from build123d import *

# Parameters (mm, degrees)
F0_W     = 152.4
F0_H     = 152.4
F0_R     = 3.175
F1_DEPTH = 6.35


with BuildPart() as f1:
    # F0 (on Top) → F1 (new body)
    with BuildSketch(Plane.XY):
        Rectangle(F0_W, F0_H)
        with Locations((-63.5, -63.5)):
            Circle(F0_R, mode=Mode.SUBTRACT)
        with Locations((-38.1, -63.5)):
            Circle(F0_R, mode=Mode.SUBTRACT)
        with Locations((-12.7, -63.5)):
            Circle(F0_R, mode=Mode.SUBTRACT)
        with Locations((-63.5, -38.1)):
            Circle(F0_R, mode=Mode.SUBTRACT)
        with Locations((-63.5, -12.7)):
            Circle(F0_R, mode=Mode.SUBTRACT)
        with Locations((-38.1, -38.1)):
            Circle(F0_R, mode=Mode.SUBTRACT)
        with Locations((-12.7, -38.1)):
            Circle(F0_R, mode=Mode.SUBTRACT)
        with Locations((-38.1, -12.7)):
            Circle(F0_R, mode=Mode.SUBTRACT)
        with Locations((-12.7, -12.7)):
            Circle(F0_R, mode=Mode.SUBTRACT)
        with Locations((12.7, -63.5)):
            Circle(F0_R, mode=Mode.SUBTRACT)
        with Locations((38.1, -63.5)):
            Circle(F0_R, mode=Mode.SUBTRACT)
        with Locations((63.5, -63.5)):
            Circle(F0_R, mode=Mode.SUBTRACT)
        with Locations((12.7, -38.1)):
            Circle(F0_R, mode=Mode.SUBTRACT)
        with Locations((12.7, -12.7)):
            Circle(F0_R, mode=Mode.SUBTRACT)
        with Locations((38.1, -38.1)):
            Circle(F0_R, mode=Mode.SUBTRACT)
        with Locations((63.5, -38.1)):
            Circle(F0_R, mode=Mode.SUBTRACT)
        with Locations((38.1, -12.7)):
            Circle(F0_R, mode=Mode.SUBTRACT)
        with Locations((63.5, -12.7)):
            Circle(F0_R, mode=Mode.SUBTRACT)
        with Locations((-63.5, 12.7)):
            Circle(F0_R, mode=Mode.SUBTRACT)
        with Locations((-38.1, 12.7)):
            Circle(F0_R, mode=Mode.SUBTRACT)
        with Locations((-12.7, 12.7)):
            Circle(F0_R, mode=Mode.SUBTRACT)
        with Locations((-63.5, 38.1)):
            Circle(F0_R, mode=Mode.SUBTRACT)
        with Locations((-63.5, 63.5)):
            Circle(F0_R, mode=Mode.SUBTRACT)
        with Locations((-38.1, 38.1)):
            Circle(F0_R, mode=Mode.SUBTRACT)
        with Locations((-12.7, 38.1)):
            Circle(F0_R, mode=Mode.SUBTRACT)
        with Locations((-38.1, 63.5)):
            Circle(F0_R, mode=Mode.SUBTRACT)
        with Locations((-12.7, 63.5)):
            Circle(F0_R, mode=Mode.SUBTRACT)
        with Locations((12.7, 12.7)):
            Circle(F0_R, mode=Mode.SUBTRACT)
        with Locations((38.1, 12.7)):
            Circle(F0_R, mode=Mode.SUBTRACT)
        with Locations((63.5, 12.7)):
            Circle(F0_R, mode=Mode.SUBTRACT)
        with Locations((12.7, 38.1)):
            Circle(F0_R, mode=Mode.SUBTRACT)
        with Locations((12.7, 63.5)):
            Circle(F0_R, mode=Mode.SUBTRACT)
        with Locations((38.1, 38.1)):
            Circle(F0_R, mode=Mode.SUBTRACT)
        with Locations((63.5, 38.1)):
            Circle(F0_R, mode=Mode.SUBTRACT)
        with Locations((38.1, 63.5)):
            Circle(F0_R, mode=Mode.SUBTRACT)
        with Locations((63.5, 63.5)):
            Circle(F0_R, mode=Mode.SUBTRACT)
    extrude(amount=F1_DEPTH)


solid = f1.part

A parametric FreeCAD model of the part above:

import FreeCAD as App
import Part
import Sketcher

V = App.Vector
Q = App.Units.Quantity

doc = App.newDocument("Part")
params = doc.addObject("Spreadsheet::Sheet", "Params")
for row, (alias, value) in enumerate([
    ("sketch1_diameter", "0.25 in"),
    ("sketch1_width", "6 in"),
    ("pad1_length", "0.25 in"),
], start=1):
    params.set(f"A{row}", alias)
    params.set(f"B{row}", "=" + value)
    params.setAlias(f"B{row}", alias)

body = doc.addObject("PartDesign::Body", "Body")

sketch1 = doc.addObject("Sketcher::SketchObject", "Sketch")
body.addObject(sketch1)
sketch1.AttachmentSupport = (doc.XY_Plane, [""])
sketch1.MapMode = "FlatFace"
sketch1.addGeometry([
    Part.LineSegment(V(-76.2, 76.2, 0), V(-76.2, -76.2, 0)),
    Part.LineSegment(V(-76.2, -76.2, 0), V(76.2, -76.2, 0)),
    Part.LineSegment(V(76.2, -76.2, 0), V(76.2, 76.2, 0)),
    Part.LineSegment(V(76.2, 76.2, 0), V(-76.2, 76.2, 0)),
    Part.Circle(V(-63.5, -63.5, 0), V(0, 0, 1), 3.2),
    Part.Circle(V(-38.1, -63.5, 0), V(0, 0, 1), 3.2),
    Part.Circle(V(-63.5, -38.1, 0), V(0, 0, 1), 3.2),
    Part.Circle(V(-38.1, -38.1, 0), V(0, 0, 1), 3.2),
    Part.Circle(V(-12.7, -63.5, 0), V(0, 0, 1), 3.2),
    Part.Circle(V(-12.7, -38.1, 0), V(0, 0, 1), 3.2),
    Part.Circle(V(-63.5, -12.7, 0), V(0, 0, 1), 3.2),
    Part.Circle(V(-38.1, -12.7, 0), V(0, 0, 1), 3.2),
    Part.Circle(V(-12.7, -12.7, 0), V(0, 0, 1), 3.2),
    Part.Circle(V(12.7, -63.5, 0), V(0, 0, 1), 3.2),
    Part.Circle(V(12.7, -38.1, 0), V(0, 0, 1), 3.2),
    Part.Circle(V(38.1, -63.5, 0), V(0, 0, 1), 3.2),
    Part.Circle(V(63.5, -63.5, 0), V(0, 0, 1), 3.2),
    Part.Circle(V(38.1, -38.1, 0), V(0, 0, 1), 3.2),
    Part.Circle(V(63.5, -38.1, 0), V(0, 0, 1), 3.2),
    Part.Circle(V(12.7, -12.7, 0), V(0, 0, 1), 3.2),
    Part.Circle(V(38.1, -12.7, 0), V(0, 0, 1), 3.2),
    Part.Circle(V(63.5, -12.7, 0), V(0, 0, 1), 3.2),
    Part.Circle(V(-63.5, 12.7, 0), V(0, 0, 1), 3.2),
    Part.Circle(V(-38.1, 12.7, 0), V(0, 0, 1), 3.2),
    Part.Circle(V(-12.7, 12.7, 0), V(0, 0, 1), 3.2),
    Part.Circle(V(-63.5, 38.1, 0), V(0, 0, 1), 3.2),
    Part.Circle(V(-38.1, 38.1, 0), V(0, 0, 1), 3.2),
    Part.Circle(V(-63.5, 63.5, 0), V(0, 0, 1), 3.2),
    Part.Circle(V(-38.1, 63.5, 0), V(0, 0, 1), 3.2),
    Part.Circle(V(-12.7, 38.1, 0), V(0, 0, 1), 3.2),
    Part.Circle(V(-12.7, 63.5, 0), V(0, 0, 1), 3.2),
    Part.Circle(V(12.7, 12.7, 0), V(0, 0, 1), 3.2),
    Part.Circle(V(38.1, 12.7, 0), V(0, 0, 1), 3.2),
    Part.Circle(V(63.5, 12.7, 0), V(0, 0, 1), 3.2),
    Part.Circle(V(12.7, 38.1, 0), V(0, 0, 1), 3.2),
    Part.Circle(V(12.7, 63.5, 0), V(0, 0, 1), 3.2),
    Part.Circle(V(38.1, 38.1, 0), V(0, 0, 1), 3.2),
    Part.Circle(V(63.5, 38.1, 0), V(0, 0, 1), 3.2),
    Part.Circle(V(38.1, 63.5, 0), V(0, 0, 1), 3.2),
    Part.Circle(V(63.5, 63.5, 0), V(0, 0, 1), 3.2),
], False)
sketch1.addConstraint([
    Sketcher.Constraint("Coincident", 0, 2, 1, 1),
    Sketcher.Constraint("Coincident", 1, 2, 2, 1),
    Sketcher.Constraint("Coincident", 2, 2, 3, 1),
    Sketcher.Constraint("Coincident", 3, 2, 0, 1),
    Sketcher.Constraint("Vertical", 0),
    Sketcher.Constraint("Horizontal", 1),
    Sketcher.Constraint("Vertical", 2),
    Sketcher.Constraint("Horizontal", 3),
    Sketcher.Constraint("Equal", 4, 5),
    Sketcher.Constraint("Equal", 5, 6),
    Sketcher.Constraint("Equal", 6, 7),
    Sketcher.Constraint("Equal", 7, 8),
    Sketcher.Constraint("Equal", 8, 9),
    Sketcher.Constraint("Equal", 9, 10),
    Sketcher.Constraint("Equal", 10, 11),
    Sketcher.Constraint("Equal", 11, 12),
    Sketcher.Constraint("Equal", 12, 13),
    Sketcher.Constraint("Equal", 13, 14),
    Sketcher.Constraint("Equal", 14, 15),
    Sketcher.Constraint("Equal", 15, 16),
    Sketcher.Constraint("Equal", 16, 17),
    Sketcher.Constraint("Equal", 17, 18),
    Sketcher.Constraint("Equal", 18, 19),
    Sketcher.Constraint("Equal", 19, 20),
    Sketcher.Constraint("Equal", 20, 21),
    Sketcher.Constraint("Equal", 21, 22),
    Sketcher.Constraint("Equal", 22, 23),
    Sketcher.Constraint("Equal", 23, 24),
    Sketcher.Constraint("Equal", 24, 25),
    Sketcher.Constraint("Equal", 25, 26),
    Sketcher.Constraint("Equal", 26, 27),
    Sketcher.Constraint("Equal", 27, 28),
    Sketcher.Constraint("Equal", 28, 29),
    Sketcher.Constraint("Equal", 29, 30),
    Sketcher.Constraint("Equal", 30, 31),
    Sketcher.Constraint("Equal", 31, 32),
    Sketcher.Constraint("Equal", 32, 33),
    Sketcher.Constraint("Equal", 33, 34),
    Sketcher.Constraint("Equal", 34, 35),
    Sketcher.Constraint("Equal", 35, 36),
    Sketcher.Constraint("Equal", 36, 37),
    Sketcher.Constraint("Equal", 37, 38),
    Sketcher.Constraint("Equal", 38, 39),
    Sketcher.Constraint("Symmetric", 21, 3, 22, 3, -1, 1),
    Sketcher.Constraint("Symmetric", 20, 3, 23, 3, -1, 1),
    Sketcher.Constraint("Symmetric", 19, 3, 24, 3, -1, 1),
    Sketcher.Constraint("Symmetric", 18, 3, 25, 3, -1, 1),
    Sketcher.Constraint("Symmetric", 17, 3, 26, 3, -1, 1),
    Sketcher.Constraint("Symmetric", 16, 3, 27, 3, -1, 1),
    Sketcher.Constraint("Symmetric", 15, 3, 28, 3, -1, 1),
    Sketcher.Constraint("Symmetric", 14, 3, 29, 3, -1, 1),
    Sketcher.Constraint("Symmetric", 13, 3, 30, 3, -1, 1),
    Sketcher.Constraint("Symmetric", 12, 3, 31, 3, -1, 1),
    Sketcher.Constraint("Symmetric", 11, 3, 32, 3, -1, 1),
    Sketcher.Constraint("Symmetric", 10, 3, 33, 3, -1, 1),
    Sketcher.Constraint("Symmetric", 9, 3, 34, 3, -1, 1),
    Sketcher.Constraint("Symmetric", 8, 3, 35, 3, -1, 1),
    Sketcher.Constraint("Symmetric", 7, 3, 36, 3, -1, 1),
    Sketcher.Constraint("Symmetric", 6, 3, 37, 3, -1, 1),
    Sketcher.Constraint("Symmetric", 5, 3, 38, 3, -1, 1),
    Sketcher.Constraint("Symmetric", 4, 3, 39, 3, -1, 1),
    Sketcher.Constraint("Symmetric", 0, 2, 2, 2, -1, 1),
    Sketcher.Constraint("Symmetric", 8, 3, 13, 3, -2),
    Sketcher.Constraint("Symmetric", 9, 3, 14, 3, -2),
    Sketcher.Constraint("Symmetric", 5, 3, 15, 3, -2),
    Sketcher.Constraint("Symmetric", 4, 3, 16, 3, -2),
    Sketcher.Constraint("Symmetric", 7, 3, 17, 3, -2),
    Sketcher.Constraint("Symmetric", 6, 3, 18, 3, -2),
    Sketcher.Constraint("Symmetric", 12, 3, 19, 3, -2),
    Sketcher.Constraint("Symmetric", 11, 3, 20, 3, -2),
    Sketcher.Constraint("Symmetric", 10, 3, 21, 3, -2),
    Sketcher.Constraint("Horizontal", 4, 3, 5, 3),
    Sketcher.Constraint("Horizontal", 6, 3, 7, 3),
    Sketcher.Constraint("Horizontal", 5, 3, 8, 3),
    Sketcher.Constraint("Horizontal", 7, 3, 9, 3),
    Sketcher.Constraint("Horizontal", 10, 3, 11, 3),
    Sketcher.Constraint("Horizontal", 11, 3, 12, 3),
    Sketcher.Constraint("Vertical", 4, 3, 6, 3),
    Sketcher.Constraint("Vertical", 5, 3, 7, 3),
    Sketcher.Constraint("Vertical", 8, 3, 9, 3),
    Sketcher.Constraint("Vertical", 6, 3, 10, 3),
    Sketcher.Constraint("Vertical", 7, 3, 11, 3),
    Sketcher.Constraint("Vertical", 9, 3, 12, 3),
    Sketcher.Constraint("Equal", 3, 0),
    Sketcher.Constraint("Diameter", 4, Q("0.25 in")),
    Sketcher.Constraint("DistanceX", 1, 1, 1, 2, Q("6 in")),
    Sketcher.Constraint("DistanceX", 4, 3, 5, 3, Q("1 in")),
    Sketcher.Constraint("DistanceY", 4, 3, 6, 3, Q("1 in")),
    Sketcher.Constraint("DistanceX", 5, 3, 8, 3, Q("1 in")),
    Sketcher.Constraint("DistanceY", 6, 3, 10, 3, Q("1 in")),
    Sketcher.Constraint("DistanceX", 8, 3, 13, 3, Q("1 in")),
    Sketcher.Constraint("DistanceY", 10, 3, 22, 3, Q("1 in")),
])
sketch1.setExpression("Constraints[84]", "Params.sketch1_diameter")
sketch1.setExpression("Constraints[85]", "Params.sketch1_width")
pad1 = doc.addObject("PartDesign::Pad", "Pad")
body.addObject(pad1)
pad1.Profile = sketch1
pad1.setExpression("Length", "Params.pad1_length")

doc.recompute()
